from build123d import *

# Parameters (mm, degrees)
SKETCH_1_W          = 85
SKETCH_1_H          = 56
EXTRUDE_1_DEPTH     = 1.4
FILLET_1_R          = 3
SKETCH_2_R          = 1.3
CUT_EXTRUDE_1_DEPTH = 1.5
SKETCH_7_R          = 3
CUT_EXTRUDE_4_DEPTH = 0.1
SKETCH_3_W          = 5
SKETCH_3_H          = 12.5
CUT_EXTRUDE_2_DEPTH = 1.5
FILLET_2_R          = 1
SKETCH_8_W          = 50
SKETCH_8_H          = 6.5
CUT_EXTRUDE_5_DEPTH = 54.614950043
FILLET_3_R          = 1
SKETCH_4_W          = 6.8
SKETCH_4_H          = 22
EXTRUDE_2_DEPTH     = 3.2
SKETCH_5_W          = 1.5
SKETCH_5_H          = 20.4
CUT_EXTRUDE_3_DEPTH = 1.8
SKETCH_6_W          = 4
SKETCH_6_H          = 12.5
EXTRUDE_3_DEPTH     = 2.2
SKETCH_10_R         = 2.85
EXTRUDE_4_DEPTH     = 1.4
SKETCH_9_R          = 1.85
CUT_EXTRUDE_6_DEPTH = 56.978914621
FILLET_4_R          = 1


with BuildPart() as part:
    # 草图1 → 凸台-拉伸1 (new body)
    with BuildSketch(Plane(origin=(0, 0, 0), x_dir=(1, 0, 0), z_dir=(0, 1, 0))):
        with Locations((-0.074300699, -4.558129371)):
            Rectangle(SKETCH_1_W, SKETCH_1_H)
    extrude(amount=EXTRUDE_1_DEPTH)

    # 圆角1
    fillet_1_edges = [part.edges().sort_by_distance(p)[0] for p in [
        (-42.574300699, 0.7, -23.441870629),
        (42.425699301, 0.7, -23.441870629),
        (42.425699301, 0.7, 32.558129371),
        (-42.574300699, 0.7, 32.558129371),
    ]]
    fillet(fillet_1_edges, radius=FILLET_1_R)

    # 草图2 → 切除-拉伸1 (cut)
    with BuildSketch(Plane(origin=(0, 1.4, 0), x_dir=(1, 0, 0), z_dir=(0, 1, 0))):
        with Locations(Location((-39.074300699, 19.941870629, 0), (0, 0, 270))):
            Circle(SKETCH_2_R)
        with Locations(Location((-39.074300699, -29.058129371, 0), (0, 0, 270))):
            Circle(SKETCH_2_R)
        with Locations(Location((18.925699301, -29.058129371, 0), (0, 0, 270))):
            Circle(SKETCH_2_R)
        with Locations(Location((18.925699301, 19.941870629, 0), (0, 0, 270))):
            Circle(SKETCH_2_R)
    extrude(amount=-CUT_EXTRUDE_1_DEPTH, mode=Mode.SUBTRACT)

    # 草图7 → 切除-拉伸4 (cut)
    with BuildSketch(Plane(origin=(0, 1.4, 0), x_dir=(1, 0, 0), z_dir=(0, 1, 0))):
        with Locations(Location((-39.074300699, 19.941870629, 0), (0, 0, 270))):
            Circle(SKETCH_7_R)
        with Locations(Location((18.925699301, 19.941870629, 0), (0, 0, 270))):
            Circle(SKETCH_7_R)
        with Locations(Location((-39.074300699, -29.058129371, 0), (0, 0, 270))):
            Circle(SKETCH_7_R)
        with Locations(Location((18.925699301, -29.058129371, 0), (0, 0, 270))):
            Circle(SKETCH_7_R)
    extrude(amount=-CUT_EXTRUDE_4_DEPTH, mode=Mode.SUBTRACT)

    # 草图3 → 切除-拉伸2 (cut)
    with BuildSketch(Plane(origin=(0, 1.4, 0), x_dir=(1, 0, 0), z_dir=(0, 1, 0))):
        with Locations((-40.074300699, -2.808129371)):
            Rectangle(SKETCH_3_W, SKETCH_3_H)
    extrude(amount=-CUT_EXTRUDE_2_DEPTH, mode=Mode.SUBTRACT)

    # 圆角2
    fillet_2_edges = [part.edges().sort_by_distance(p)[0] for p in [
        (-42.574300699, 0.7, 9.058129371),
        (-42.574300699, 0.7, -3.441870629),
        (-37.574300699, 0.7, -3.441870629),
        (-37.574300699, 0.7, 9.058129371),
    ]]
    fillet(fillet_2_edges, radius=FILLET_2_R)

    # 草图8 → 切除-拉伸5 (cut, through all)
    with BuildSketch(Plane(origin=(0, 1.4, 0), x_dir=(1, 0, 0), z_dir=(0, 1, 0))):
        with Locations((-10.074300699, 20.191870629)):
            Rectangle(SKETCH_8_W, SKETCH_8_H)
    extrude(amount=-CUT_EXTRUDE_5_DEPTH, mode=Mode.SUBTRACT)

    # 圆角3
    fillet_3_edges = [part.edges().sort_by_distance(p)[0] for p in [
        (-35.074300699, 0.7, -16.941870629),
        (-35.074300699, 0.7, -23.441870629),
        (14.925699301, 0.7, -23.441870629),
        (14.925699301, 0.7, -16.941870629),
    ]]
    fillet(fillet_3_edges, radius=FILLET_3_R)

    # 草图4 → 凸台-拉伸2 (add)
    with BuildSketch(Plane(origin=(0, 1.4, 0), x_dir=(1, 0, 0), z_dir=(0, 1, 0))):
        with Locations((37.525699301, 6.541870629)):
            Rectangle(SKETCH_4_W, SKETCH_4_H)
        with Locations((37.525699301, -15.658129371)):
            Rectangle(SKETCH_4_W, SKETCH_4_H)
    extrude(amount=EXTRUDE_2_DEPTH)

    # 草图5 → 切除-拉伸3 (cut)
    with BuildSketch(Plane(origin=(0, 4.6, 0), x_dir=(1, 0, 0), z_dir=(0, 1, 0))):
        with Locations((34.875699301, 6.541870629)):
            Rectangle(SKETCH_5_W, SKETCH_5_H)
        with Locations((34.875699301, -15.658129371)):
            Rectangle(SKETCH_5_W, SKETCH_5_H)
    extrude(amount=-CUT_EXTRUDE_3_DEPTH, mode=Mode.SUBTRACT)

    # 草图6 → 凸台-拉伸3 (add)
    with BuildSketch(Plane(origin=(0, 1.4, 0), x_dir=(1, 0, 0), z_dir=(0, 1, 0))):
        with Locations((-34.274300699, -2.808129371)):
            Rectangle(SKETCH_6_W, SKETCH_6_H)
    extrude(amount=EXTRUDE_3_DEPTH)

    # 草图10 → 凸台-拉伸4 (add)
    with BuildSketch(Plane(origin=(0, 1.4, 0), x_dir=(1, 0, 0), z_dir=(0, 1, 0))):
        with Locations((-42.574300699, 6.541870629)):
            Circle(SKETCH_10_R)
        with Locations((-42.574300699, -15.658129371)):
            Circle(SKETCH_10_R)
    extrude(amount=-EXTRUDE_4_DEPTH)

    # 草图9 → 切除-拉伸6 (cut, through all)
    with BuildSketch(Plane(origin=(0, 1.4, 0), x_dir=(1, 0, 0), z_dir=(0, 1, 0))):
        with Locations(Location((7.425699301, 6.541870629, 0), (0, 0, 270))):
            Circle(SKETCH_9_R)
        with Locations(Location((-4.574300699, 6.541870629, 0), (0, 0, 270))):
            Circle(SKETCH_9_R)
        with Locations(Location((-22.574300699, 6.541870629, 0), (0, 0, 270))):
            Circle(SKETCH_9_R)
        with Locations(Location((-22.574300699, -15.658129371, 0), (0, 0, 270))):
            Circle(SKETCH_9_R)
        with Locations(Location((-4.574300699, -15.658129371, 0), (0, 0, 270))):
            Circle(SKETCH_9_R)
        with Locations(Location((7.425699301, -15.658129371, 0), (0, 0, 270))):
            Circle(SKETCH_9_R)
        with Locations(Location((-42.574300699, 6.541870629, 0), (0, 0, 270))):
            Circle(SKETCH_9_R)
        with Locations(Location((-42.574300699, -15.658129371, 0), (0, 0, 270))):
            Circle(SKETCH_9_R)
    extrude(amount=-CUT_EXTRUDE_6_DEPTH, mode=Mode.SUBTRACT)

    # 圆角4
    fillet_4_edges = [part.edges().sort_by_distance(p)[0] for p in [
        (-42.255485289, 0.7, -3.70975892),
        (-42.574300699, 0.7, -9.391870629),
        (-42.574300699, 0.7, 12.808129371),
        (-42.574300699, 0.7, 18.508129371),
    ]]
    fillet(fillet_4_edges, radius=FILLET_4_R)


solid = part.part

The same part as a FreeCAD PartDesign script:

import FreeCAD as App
import Part
import Sketcher

V = App.Vector


def edges_at(feature, points):
    """Names of the edges that pass closest to the given points."""
    edges = feature.Shape.Edges
    near = lambda p: min(range(len(edges)), key=lambda i: edges[i].distToShape(Part.Vertex(*p))[0])
    return sorted({f"Edge{near(p) + 1}" for p in points})


def add_polygon(sketch, points):
    """Adds a closed chain of lines whose ends are joined by coincident constraints."""
    first, n = sketch.GeometryCount, len(points)
    for a, b in zip(points, points[1:] + points[:1]):
        sketch.addGeometry(Part.LineSegment(App.Vector(*a, 0), App.Vector(*b, 0)), False)
    for i in range(n):
        sketch.addConstraint(Sketcher.Constraint("Coincident", first + i, 2, first + (i + 1) % n, 1))

doc = App.newDocument("Part")
body = doc.addObject("PartDesign::Body", "Body")

# Sketch on XZ plane
sketch1 = body.newObject("Sketcher::SketchObject", "Sketch")
sketch1.AttachmentSupport = (doc.getObject("XZ_Plane"), [""])
sketch1.MapMode = "FlatFace"
add_polygon(sketch1, [(-42.574301, -23.441871), (-42.574301, 32.558129), (42.425699, 32.558129), (42.425699, -23.441871)])  # lines 0-3
sketch1.addConstraint(Sketcher.Constraint("Vertical", 0))
sketch1.addConstraint(Sketcher.Constraint("Horizontal", 1))
sketch1.addConstraint(Sketcher.Constraint("Vertical", 2))
sketch1.addConstraint(Sketcher.Constraint("Horizontal", 3))
sketch1.addConstraint(Sketcher.Constraint("DistanceX", 1, 1, 1, 2, 85.0))
sketch1.addConstraint(Sketcher.Constraint("DistanceY", 0, 1, 0, 2, 56.0))
sketch1.addConstraint(Sketcher.Constraint("DistanceX", 0, 2, -1, 1, 42.574301))
sketch1.addConstraint(Sketcher.Constraint("DistanceY", -1, 1, 0, 2, 32.558129))
pad1 = body.newObject("PartDesign::Pad", "Pad")
pad1.Profile = sketch1
pad1.Length = 1.4
pad1.Reversed = True
doc.recompute()

fillet = body.newObject("PartDesign::Fillet", "Fillet")
fillet.Base = (pad1, edges_at(pad1, [
    (-42.574, 0.7, -23.442),
    (42.426, 0.7, -23.442),
    (42.426, 0.7, 32.558),
    (-42.574, 0.7, 32.558),
]))
fillet.Radius = 3

# Sketch on XZ plane
sketch2 = body.newObject("Sketcher::SketchObject", "Sketch001")
sketch2.AttachmentSupport = (doc.getObject("XZ_Plane"), [""])
sketch2.MapMode = "FlatFace"
sketch2.AttachmentOffset = App.Placement(V(0, 0, -1.4), App.Rotation())
sketch2.addGeometry(Part.Circle(V(-39.074301, -19.941871, 0), V(0, 0, 1), 1.3), False)
sketch2.addGeometry(Part.Circle(V(-39.074301, 29.058129, 0), V(0, 0, 1), 1.3), False)
sketch2.addGeometry(Part.Circle(V(18.925699, 29.058129, 0), V(0, 0, 1), 1.3), False)
sketch2.addGeometry(Part.Circle(V(18.925699, -19.941871, 0), V(0, 0, 1), 1.3), False)
sketch2.addConstraint(Sketcher.Constraint("Equal", 0, 1))
sketch2.addConstraint(Sketcher.Constraint("Equal", 1, 2))
sketch2.addConstraint(Sketcher.Constraint("Equal", 2, 3))
sketch2.addConstraint(Sketcher.Constraint("Horizontal", 1, 3, 2, 3))
sketch2.addConstraint(Sketcher.Constraint("Horizontal", 0, 3, 3, 3))
sketch2.addConstraint(Sketcher.Constraint("Vertical", 0, 3, 1, 3))
sketch2.addConstraint(Sketcher.Constraint("Vertical", 2, 3, 3, 3))
sketch2.addConstraint(Sketcher.Constraint("Diameter", 0, 2.6))
sketch2.addConstraint(Sketcher.Constraint("DistanceY", 0, 3, 1, 3, 49.0))
sketch2.addConstraint(Sketcher.Constraint("DistanceX", 1, 3, 2, 3, 58.0))
sketch2.addConstraint(Sketcher.Constraint("DistanceX", 0, 3, -1, 1, 39.074301))
sketch2.addConstraint(Sketcher.Constraint("DistanceY", 0, 3, -1, 1, 19.941871))
pocket1 = body.newObject("PartDesign::Pocket", "Pocket")
pocket1.Profile = sketch2
pocket1.Length = 1.5
pocket1.Reversed = True

# Sketch on XZ plane
sketch3 = body.newObject("Sketcher::SketchObject", "Sketch002")
sketch3.AttachmentSupport = (doc.getObject("XZ_Plane"), [""])
sketch3.MapMode = "FlatFace"
sketch3.AttachmentOffset = App.Placement(V(0, 0, -1.4), App.Rotation())
sketch3.addGeometry(Part.Circle(V(-39.074301, -19.941871, 0), V(0, 0, 1), 3), False)
sketch3.addGeometry(Part.Circle(V(18.925699, -19.941871, 0), V(0, 0, 1), 3), False)
sketch3.addGeometry(Part.Circle(V(-39.074301, 29.058129, 0), V(0, 0, 1), 3), False)
sketch3.addGeometry(Part.Circle(V(18.925699, 29.058129, 0), V(0, 0, 1), 3), False)
sketch3.addConstraint(Sketcher.Constraint("Equal", 0, 1))
sketch3.addConstraint(Sketcher.Constraint("Equal", 1, 2))
sketch3.addConstraint(Sketcher.Constraint("Equal", 2, 3))
sketch3.addConstraint(Sketcher.Constraint("Horizontal", 0, 3, 1, 3))
sketch3.addConstraint(Sketcher.Constraint("Horizontal", 2, 3, 3, 3))
sketch3.addConstraint(Sketcher.Constraint("Vertical", 0, 3, 2, 3))
sketch3.addConstraint(Sketcher.Constraint("Vertical", 1, 3, 3, 3))
sketch3.addConstraint(Sketcher.Constraint("Diameter", 0, 6.0))
sketch3.addConstraint(Sketcher.Constraint("DistanceX", 0, 3, 1, 3, 58.0))
sketch3.addConstraint(Sketcher.Constraint("DistanceY", 0, 3, 2, 3, 49.0))
sketch3.addConstraint(Sketcher.Constraint("DistanceX", 0, 3, -1, 1, 39.074301))
sketch3.addConstraint(Sketcher.Constraint("DistanceY", 0, 3, -1, 1, 19.941871))
pocket2 = body.newObject("PartDesign::Pocket", "Pocket001")
pocket2.Profile = sketch3
pocket2.Length = 0.1
pocket2.Reversed = True

# Sketch on XZ plane
sketch4 = body.newObject("Sketcher::SketchObject", "Sketch003")
sketch4.AttachmentSupport = (doc.getObject("XZ_Plane"), [""])
sketch4.MapMode = "FlatFace"
sketch4.AttachmentOffset = App.Placement(V(0, 0, -1.4), App.Rotation())
add_polygon(sketch4, [(-42.574301, -3.441871), (-42.574301, 9.058129), (-37.574301, 9.058129), (-37.574301, -3.441871)])  # lines 0-3
sketch4.addConstraint(Sketcher.Constraint("Vertical", 0))
sketch4.addConstraint(Sketcher.Constraint("Horizontal", 1))
sketch4.addConstraint(Sketcher.Constraint("Vertical", 2))
sketch4.addConstraint(Sketcher.Constraint("Horizontal", 3))
sketch4.addConstraint(Sketcher.Constraint("DistanceX", 1, 1, 1, 2, 5.0))
sketch4.addConstraint(Sketcher.Constraint("DistanceY", 0, 1, 0, 2, 12.5))
sketch4.addConstraint(Sketcher.Constraint("DistanceX", 0, 2, -1, 1, 42.574301))
sketch4.addConstraint(Sketcher.Constraint("DistanceY", -1, 1, 0, 2, 9.058129))
pocket3 = body.newObject("PartDesign::Pocket", "Pocket002")
pocket3.Profile = sketch4
pocket3.Length = 1.5
pocket3.Reversed = True
doc.recompute()

fillet2 = body.newObject("PartDesign::Fillet", "Fillet001")
fillet2.Base = (pocket3, edges_at(pocket3, [
    (-42.574, 0.7, 9.058),
    (-42.574, 0.7, -3.442),
    (-37.574, 0.7, -3.442),
    (-37.574, 0.7, 9.058),
]))
fillet2.Radius = 1

# Sketch on XZ plane
sketch5 = body.newObject("Sketcher::SketchObject", "Sketch004")
sketch5.AttachmentSupport = (doc.getObject("XZ_Plane"), [""])
sketch5.MapMode = "FlatFace"
sketch5.AttachmentOffset = App.Placement(V(0, 0, -1.4), App.Rotation())
add_polygon(sketch5, [(-35.074301, -23.441871), (-35.074301, -16.941871), (14.925699, -16.941871), (14.925699, -23.441871)])  # lines 0-3
sketch5.addConstraint(Sketcher.Constraint("Vertical", 0))
sketch5.addConstraint(Sketcher.Constraint("Horizontal", 1))
sketch5.addConstraint(Sketcher.Constraint("Vertical", 2))
sketch5.addConstraint(Sketcher.Constraint("Horizontal", 3))
sketch5.addConstraint(Sketcher.Constraint("DistanceX", 1, 1, 1, 2, 50.0))
sketch5.addConstraint(Sketcher.Constraint("DistanceY", 0, 1, 0, 2, 6.5))
sketch5.addConstraint(Sketcher.Constraint("DistanceX", 0, 2, -1, 1, 35.074301))
sketch5.addConstraint(Sketcher.Constraint("DistanceY", 0, 2, -1, 1, 16.941871))
pocket4 = body.newObject("PartDesign::Pocket", "Pocket003")
pocket4.Profile = sketch5
pocket4.Type = "ThroughAll"
pocket4.Reversed = True
doc.recompute()

fillet3 = body.newObject("PartDesign::Fillet", "Fillet002")
fillet3.Base = (pocket4, edges_at(pocket4, [
    (-35.074, 0.7, -16.942),
    (-35.074, 0.7, -23.442),
    (14.926, 0.7, -23.442),
    (14.926, 0.7, -16.942),
]))
fillet3.Radius = 1

# Sketch on XZ plane
sketch6 = body.newObject("Sketcher::SketchObject", "Sketch005")
sketch6.AttachmentSupport = (doc.getObject("XZ_Plane"), [""])
sketch6.MapMode = "FlatFace"
sketch6.AttachmentOffset = App.Placement(V(0, 0, -1.4), App.Rotation())
add_polygon(sketch6, [(34.125699, -17.541871), (34.125699, 4.458129), (40.925699, 4.458129), (40.925699, -17.541871)])  # lines 0-3
add_polygon(sketch6, [(34.125699, 4.658129), (34.125699, 26.658129), (40.925699, 26.658129), (40.925699, 4.658129)])  # lines 4-7
sketch6.addConstraint(Sketcher.Constraint("Vertical", 0))
sketch6.addConstraint(Sketcher.Constraint("Horizontal", 1))
sketch6.addConstraint(Sketcher.Constraint("Vertical", 2))
sketch6.addConstraint(Sketcher.Constraint("Horizontal", 3))
sketch6.addConstraint(Sketcher.Constraint("Vertical", 4))
sketch6.addConstraint(Sketcher.Constraint("Horizontal", 5))
sketch6.addConstraint(Sketcher.Constraint("Vertical", 6))
sketch6.addConstraint(Sketcher.Constraint("Horizontal", 7))
sketch6.addConstraint(Sketcher.Constraint("Vertical", 3, 2, 4, 2))
sketch6.addConstraint(Sketcher.Constraint("Vertical", 2, 2, 5, 2))
sketch6.addConstraint(Sketcher.Constraint("Equal", 2, 4))
sketch6.addConstraint(Sketcher.Constraint("DistanceY", 0, 1, 0, 2, 22.0))
sketch6.addConstraint(Sketcher.Constraint("DistanceX", 1, 1, 1, 2, 6.8))
sketch6.addConstraint(Sketcher.Constraint("DistanceY", 0, 2, 4, 2, 22.2))
sketch6.addConstraint(Sketcher.Constraint("DistanceX", -1, 1, 0, 2, 34.125699))
sketch6.addConstraint(Sketcher.Constraint("DistanceY", -1, 1, 0, 2, 4.458129))
pad2 = body.newObject("PartDesign::Pad", "Pad001")
pad2.Profile = sketch6
pad2.Length = 3.2
pad2.Reversed = True

# Sketch on XZ plane
sketch7 = body.newObject("Sketcher::SketchObject", "Sketch006")
sketch7.AttachmentSupport = (doc.getObject("XZ_Plane"), [""])
sketch7.MapMode = "FlatFace"
sketch7.AttachmentOffset = App.Placement(V(0, 0, -4.6), App.Rotation())
add_polygon(sketch7, [(34.125699, -16.741871), (34.125699, 3.658129), (35.625699, 3.658129), (35.625699, -16.741871)])  # lines 0-3
add_polygon(sketch7, [(34.125699, 5.458129), (34.125699, 25.858129), (35.625699, 25.858129), (35.625699, 5.458129)])  # lines 4-7
sketch7.addConstraint(Sketcher.Constraint("Vertical", 0))
sketch7.addConstraint(Sketcher.Constraint("Horizontal", 1))
sketch7.addConstraint(Sketcher.Constraint("Vertical", 2))
sketch7.addConstraint(Sketcher.Constraint("Horizontal", 3))
sketch7.addConstraint(Sketcher.Constraint("Vertical", 4))
sketch7.addConstraint(Sketcher.Constraint("Horizontal", 5))
sketch7.addConstraint(Sketcher.Constraint("Vertical", 6))
sketch7.addConstraint(Sketcher.Constraint("Horizontal", 7))
sketch7.addConstraint(Sketcher.Constraint("Vertical", 3, 2, 4, 2))
sketch7.addConstraint(Sketcher.Constraint("Vertical", 2, 2, 5, 2))
sketch7.addConstraint(Sketcher.Constraint("Equal", 2, 4))
sketch7.addConstraint(Sketcher.Constraint("DistanceX", 1, 1, 1, 2, 1.5))
sketch7.addConstraint(Sketcher.Constraint("DistanceY", 0, 1, 0, 2, 20.4))
sketch7.addConstraint(Sketcher.Constraint("DistanceY", 0, 2, 4, 2, 22.2))
sketch7.addConstraint(Sketcher.Constraint("DistanceX", -1, 1, 0, 2, 34.125699))
sketch7.addConstraint(Sketcher.Constraint("DistanceY", -1, 1, 0, 2, 3.658129))
pocket5 = body.newObject("PartDesign::Pocket", "Pocket004")
pocket5.Profile = sketch7
pocket5.Length = 1.8
pocket5.Reversed = True

# Sketch on XZ plane
sketch8 = body.newObject("Sketcher::SketchObject", "Sketch007")
sketch8.AttachmentSupport = (doc.getObject("XZ_Plane"), [""])
sketch8.MapMode = "FlatFace"
sketch8.AttachmentOffset = App.Placement(V(0, 0, -1.4), App.Rotation())
add_polygon(sketch8, [(-36.274301, -3.441871), (-36.274301, 9.058129), (-32.274301, 9.058129), (-32.274301, -3.441871)])  # lines 0-3
sketch8.addConstraint(Sketcher.Constraint("Vertical", 0))
sketch8.addConstraint(Sketcher.Constraint("Horizontal", 1))
sketch8.addConstraint(Sketcher.Constraint("Vertical", 2))
sketch8.addConstraint(Sketcher.Constraint("Horizontal", 3))
sketch8.addConstraint(Sketcher.Constraint("DistanceX", 1, 1, 1, 2, 4.0))
sketch8.addConstraint(Sketcher.Constraint("DistanceY", 0, 1, 0, 2, 12.5))
sketch8.addConstraint(Sketcher.Constraint("DistanceX", 0, 2, -1, 1, 36.274301))
sketch8.addConstraint(Sketcher.Constraint("DistanceY", -1, 1, 0, 2, 9.058129))
pad3 = body.newObject("PartDesign::Pad", "Pad002")
pad3.Profile = sketch8
pad3.Length = 2.2
pad3.Reversed = True

# Sketch on XZ plane
sketch9 = body.newObject("Sketcher::SketchObject", "Sketch008")
sketch9.AttachmentSupport = (doc.getObject("XZ_Plane"), [""])
sketch9.MapMode = "FlatFace"
sketch9.AttachmentOffset = App.Placement(V(0, 0, -1.4), App.Rotation())
sketch9.addGeometry(Part.Circle(V(-42.574301, -6.541871, 0), V(0, 0, 1), 2.85), False)
sketch9.addGeometry(Part.Circle(V(-42.574301, 15.658129, 0), V(0, 0, 1), 2.85), False)
sketch9.addConstraint(Sketcher.Constraint("Equal", 0, 1))
sketch9.addConstraint(Sketcher.Constraint("Vertical", 0, 3, 1, 3))
sketch9.addConstraint(Sketcher.Constraint("Diameter", 0, 5.7))
sketch9.addConstraint(Sketcher.Constraint("DistanceY", 0, 3, 1, 3, 22.2))
sketch9.addConstraint(Sketcher.Constraint("DistanceX", 0, 3, -1, 1, 42.574301))
sketch9.addConstraint(Sketcher.Constraint("DistanceY", 0, 3, -1, 1, 6.541871))
pad4 = body.newObject("PartDesign::Pad", "Pad003")
pad4.Profile = sketch9
pad4.Length = 1.4

# Sketch on XZ plane
sketch10 = body.newObject("Sketcher::SketchObject", "Sketch009")
sketch10.AttachmentSupport = (doc.getObject("XZ_Plane"), [""])
sketch10.MapMode = "FlatFace"
sketch10.AttachmentOffset = App.Placement(V(0, 0, -1.4), App.Rotation())
sketch10.addGeometry(Part.Circle(V(7.425699, -6.541871, 0), V(0, 0, 1), 1.85), False)
sketch10.addGeometry(Part.Circle(V(-4.574301, -6.541871, 0), V(0, 0, 1), 1.85), False)
sketch10.addGeometry(Part.Circle(V(-22.574301, -6.541871, 0), V(0, 0, 1), 1.85), False)
sketch10.addGeometry(Part.Circle(V(-22.574301, 15.658129, 0), V(0, 0, 1), 1.85), False)
sketch10.addGeometry(Part.Circle(V(-4.574301, 15.658129, 0), V(0, 0, 1), 1.85), False)
sketch10.addGeometry(Part.Circle(V(7.425699, 15.658129, 0), V(0, 0, 1), 1.85), False)
sketch10.addGeometry(Part.Circle(V(-42.574301, -6.541871, 0), V(0, 0, 1), 1.85), False)
sketch10.addGeometry(Part.Circle(V(-42.574301, 15.658129, 0), V(0, 0, 1), 1.85), False)
sketch10.addConstraint(Sketcher.Constraint("Equal", 0, 1))
sketch10.addConstraint(Sketcher.Constraint("Equal", 1, 2))
sketch10.addConstraint(Sketcher.Constraint("Equal", 2, 3))
sketch10.addConstraint(Sketcher.Constraint("Equal", 3, 4))
sketch10.addConstraint(Sketcher.Constraint("Equal", 4, 5))
sketch10.addConstraint(Sketcher.Constraint("Equal", 5, 6))
sketch10.addConstraint(Sketcher.Constraint("Equal", 6, 7))
sketch10.addConstraint(Sketcher.Constraint("Horizontal", 0, 3, 1, 3))
sketch10.addConstraint(Sketcher.Constraint("Horizontal", 1, 3, 2, 3))
sketch10.addConstraint(Sketcher.Constraint("Horizontal", 3, 3, 4, 3))
sketch10.addConstraint(Sketcher.Constraint("Horizontal", 4, 3, 5, 3))
sketch10.addConstraint(Sketcher.Constraint("Horizontal", 2, 3, 6, 3))
sketch10.addConstraint(Sketcher.Constraint("Horizontal", 5, 3, 7, 3))
sketch10.addConstraint(Sketcher.Constraint("Vertical", 2, 3, 3, 3))
sketch10.addConstraint(Sketcher.Constraint("Vertical", 1, 3, 4, 3))
sketch10.addConstraint(Sketcher.Constraint("Vertical", 0, 3, 5, 3))
sketch10.addConstraint(Sketcher.Constraint("Vertical", 6, 3, 7, 3))
sketch10.addConstraint(Sketcher.Constraint("Diameter", 0, 3.7))
sketch10.addConstraint(Sketcher.Constraint("DistanceX", 1, 3, 0, 3, 12.0))
sketch10.addConstraint(Sketcher.Constraint("DistanceX", 2, 3, 1, 3, 18.0))
sketch10.addConstraint(Sketcher.Constraint("DistanceX", 6, 3, 2, 3, 20.0))
sketch10.addConstraint(Sketcher.Constraint("DistanceY", 2, 3, 3, 3, 22.2))
sketch10.addConstraint(Sketcher.Constraint("DistanceX", -1, 1, 0, 3, 7.425699))
sketch10.addConstraint(Sketcher.Constraint("DistanceY", 0, 3, -1, 1, 6.541871))
pocket6 = body.newObject("PartDesign::Pocket", "Pocket005")
pocket6.Profile = sketch10
pocket6.Type = "ThroughAll"
pocket6.Reversed = True
doc.recompute()

fillet4 = body.newObject("PartDesign::Fillet", "Fillet003")
fillet4.Base = (pocket6, edges_at(pocket6, [
    (-42.255, 0.7, -3.71),
    (-42.574, 0.7, -9.392),
    (-42.574, 0.7, 12.808),
    (-42.574, 0.7, 18.508),
]))
fillet4.Radius = 1

doc.recompute()
